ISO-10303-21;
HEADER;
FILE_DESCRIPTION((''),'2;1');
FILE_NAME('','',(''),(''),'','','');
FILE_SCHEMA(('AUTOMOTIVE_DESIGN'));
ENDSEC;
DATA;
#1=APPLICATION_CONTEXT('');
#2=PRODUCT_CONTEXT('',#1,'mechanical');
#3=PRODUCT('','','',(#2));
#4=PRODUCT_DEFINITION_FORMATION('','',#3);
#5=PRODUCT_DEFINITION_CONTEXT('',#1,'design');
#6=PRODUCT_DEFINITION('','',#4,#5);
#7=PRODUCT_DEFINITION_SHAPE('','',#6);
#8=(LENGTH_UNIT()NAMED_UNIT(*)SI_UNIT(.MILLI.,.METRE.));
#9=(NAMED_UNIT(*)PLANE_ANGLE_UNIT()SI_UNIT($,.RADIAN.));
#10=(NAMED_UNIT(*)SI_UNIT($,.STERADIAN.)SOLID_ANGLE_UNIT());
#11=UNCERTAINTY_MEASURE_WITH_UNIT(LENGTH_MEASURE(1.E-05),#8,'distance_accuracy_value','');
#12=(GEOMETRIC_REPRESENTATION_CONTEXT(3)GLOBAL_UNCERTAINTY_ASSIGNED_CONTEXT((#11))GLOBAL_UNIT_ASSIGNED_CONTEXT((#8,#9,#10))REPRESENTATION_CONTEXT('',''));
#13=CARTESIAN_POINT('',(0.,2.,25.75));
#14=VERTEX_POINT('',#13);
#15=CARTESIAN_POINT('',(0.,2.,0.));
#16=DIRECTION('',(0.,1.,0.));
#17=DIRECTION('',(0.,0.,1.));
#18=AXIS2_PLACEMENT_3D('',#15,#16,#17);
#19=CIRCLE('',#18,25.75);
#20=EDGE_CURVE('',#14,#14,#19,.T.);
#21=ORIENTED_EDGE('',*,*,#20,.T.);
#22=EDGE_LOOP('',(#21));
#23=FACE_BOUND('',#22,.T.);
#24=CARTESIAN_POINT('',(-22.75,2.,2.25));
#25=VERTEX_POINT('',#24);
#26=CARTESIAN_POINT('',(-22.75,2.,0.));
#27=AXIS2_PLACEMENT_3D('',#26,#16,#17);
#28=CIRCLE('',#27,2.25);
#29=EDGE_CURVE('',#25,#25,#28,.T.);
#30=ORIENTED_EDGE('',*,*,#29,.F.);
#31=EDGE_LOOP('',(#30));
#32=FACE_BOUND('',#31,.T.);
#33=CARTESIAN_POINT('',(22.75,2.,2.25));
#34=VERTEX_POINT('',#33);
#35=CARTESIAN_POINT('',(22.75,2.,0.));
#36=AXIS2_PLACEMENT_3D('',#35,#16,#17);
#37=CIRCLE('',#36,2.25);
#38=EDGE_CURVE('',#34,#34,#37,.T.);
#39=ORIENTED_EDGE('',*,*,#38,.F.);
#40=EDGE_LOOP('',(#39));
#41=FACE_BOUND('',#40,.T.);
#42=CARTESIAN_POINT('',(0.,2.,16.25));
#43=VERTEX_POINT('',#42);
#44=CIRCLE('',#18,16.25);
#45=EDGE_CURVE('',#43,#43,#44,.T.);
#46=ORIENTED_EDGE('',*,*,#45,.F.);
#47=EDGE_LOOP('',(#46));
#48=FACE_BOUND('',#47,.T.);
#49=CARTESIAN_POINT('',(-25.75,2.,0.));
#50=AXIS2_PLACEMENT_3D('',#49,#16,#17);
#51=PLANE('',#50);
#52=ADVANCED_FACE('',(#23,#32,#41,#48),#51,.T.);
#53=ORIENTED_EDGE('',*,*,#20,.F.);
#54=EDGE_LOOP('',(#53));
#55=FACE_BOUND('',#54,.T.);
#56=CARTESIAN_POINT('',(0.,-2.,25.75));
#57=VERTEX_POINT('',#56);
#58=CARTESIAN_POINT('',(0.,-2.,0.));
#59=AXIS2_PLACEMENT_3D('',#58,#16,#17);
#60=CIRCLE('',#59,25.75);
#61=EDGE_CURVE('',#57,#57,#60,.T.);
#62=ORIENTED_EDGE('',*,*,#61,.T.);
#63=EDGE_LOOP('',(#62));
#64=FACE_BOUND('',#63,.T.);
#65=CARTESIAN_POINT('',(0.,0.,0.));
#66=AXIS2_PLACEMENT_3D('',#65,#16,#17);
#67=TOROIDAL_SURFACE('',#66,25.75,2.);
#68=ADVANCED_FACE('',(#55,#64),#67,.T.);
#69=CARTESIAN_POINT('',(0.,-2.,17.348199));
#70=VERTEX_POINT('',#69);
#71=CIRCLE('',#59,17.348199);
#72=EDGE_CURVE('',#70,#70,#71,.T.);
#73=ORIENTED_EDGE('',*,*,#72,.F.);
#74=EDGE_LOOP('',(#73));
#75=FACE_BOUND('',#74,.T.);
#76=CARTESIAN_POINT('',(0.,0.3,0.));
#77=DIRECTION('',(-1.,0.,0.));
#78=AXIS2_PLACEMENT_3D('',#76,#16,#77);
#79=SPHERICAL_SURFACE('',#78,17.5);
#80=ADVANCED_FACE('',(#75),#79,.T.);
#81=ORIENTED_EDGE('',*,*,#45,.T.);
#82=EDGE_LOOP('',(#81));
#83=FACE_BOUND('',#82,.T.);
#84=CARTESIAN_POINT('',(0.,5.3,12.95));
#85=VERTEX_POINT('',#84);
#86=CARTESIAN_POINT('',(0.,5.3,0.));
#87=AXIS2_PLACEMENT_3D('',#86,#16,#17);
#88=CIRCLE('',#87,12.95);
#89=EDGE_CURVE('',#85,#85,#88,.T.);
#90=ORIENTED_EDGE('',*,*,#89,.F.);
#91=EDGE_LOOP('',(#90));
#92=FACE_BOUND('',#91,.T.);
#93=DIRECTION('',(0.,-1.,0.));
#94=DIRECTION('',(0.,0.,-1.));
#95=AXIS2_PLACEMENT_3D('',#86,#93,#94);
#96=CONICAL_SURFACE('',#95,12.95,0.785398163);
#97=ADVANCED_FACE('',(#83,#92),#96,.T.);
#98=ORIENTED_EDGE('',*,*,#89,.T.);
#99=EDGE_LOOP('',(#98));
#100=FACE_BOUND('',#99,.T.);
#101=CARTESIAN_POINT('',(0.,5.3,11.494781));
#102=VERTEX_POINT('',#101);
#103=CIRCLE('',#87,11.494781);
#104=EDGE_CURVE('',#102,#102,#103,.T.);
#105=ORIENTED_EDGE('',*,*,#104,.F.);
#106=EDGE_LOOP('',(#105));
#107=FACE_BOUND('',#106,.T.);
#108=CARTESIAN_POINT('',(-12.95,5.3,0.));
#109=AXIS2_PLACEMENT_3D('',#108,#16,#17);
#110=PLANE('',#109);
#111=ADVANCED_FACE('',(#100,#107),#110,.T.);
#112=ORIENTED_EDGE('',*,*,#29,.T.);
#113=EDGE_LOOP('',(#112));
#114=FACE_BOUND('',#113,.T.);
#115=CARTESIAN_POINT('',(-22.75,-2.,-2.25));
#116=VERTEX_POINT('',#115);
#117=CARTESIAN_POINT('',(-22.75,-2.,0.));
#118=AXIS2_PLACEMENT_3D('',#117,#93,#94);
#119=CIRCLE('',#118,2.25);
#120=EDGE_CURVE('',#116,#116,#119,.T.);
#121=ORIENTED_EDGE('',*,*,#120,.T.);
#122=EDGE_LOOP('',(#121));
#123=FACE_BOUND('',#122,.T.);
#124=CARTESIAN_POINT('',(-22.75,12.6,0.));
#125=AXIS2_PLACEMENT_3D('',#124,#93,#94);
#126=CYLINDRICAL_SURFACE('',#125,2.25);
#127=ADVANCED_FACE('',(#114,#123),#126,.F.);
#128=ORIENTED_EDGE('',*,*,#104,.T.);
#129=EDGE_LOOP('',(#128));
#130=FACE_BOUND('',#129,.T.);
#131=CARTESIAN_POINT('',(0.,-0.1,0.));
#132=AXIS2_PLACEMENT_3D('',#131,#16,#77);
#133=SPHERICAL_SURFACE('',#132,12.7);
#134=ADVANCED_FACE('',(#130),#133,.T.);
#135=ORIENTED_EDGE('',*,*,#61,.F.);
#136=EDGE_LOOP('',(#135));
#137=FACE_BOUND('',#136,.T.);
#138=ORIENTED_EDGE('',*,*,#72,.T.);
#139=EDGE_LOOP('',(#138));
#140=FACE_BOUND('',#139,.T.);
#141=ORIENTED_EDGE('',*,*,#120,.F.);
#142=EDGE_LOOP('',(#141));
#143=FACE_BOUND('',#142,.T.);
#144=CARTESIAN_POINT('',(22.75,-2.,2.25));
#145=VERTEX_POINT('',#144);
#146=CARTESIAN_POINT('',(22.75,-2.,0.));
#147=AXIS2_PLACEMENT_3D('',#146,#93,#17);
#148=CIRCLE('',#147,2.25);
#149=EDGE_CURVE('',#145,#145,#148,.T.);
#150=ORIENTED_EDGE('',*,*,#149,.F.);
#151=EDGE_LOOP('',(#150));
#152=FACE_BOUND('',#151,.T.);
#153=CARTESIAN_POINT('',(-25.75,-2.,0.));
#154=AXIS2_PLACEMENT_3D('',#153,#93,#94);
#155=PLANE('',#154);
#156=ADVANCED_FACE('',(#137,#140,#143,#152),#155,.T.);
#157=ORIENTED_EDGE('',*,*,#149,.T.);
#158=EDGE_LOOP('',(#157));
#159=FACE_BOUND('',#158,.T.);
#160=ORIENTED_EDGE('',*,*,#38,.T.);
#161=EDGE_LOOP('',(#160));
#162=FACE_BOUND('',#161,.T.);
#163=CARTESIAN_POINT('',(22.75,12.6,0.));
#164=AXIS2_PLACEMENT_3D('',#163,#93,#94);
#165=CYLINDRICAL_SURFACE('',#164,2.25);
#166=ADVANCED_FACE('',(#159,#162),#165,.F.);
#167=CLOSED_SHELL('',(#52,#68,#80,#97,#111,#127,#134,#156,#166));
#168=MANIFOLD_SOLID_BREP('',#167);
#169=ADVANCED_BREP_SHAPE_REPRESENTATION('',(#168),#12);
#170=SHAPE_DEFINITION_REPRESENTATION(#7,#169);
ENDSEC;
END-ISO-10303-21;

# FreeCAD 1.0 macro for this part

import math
import FreeCAD as App
import Part
import Sketcher

V = App.Vector
Q = App.Units.Quantity

doc = App.newDocument("Part")
params = doc.addObject("Spreadsheet::Sheet", "Params")
for row, (alias, value) in enumerate([
    ("sketch1_radius", "2 mm"),
    ("sketch1_radius2", "17.5 mm"),
    ("sketch1_radius3", "12.7 mm"),
    ("sketch1_width", "9.5 mm"),
    ("sketch1_height", "29.8 mm"),
    ("revolution_angle", "360 deg"),
    ("sketch2_diameter", "4.5 mm"),
], start=1):
    params.set(f"A{row}", alias)
    params.set(f"B{row}", "=" + value)
    params.setAlias(f"B{row}", alias)

body = doc.addObject("PartDesign::Body", "Body")

# Sketch on XY plane
sketch1 = body.newObject("Sketcher::SketchObject", "Sketch")
sketch1.AttachmentSupport = (doc.getObject("XY_Plane"), [""])
sketch1.MapMode = "FlatFace"
sketch1.addGeometry([
    Part.LineSegment(V(-16.25, 2, 0), V(-25.75, 2, 0)),  # 0
    Part.ArcOfCircle(Part.Circle(V(-25.75, 0, 0), V(0, 0, 1), 2), math.radians(90), math.radians(270)),  # 1
    Part.LineSegment(V(-25.75, -2, 0), V(-17.348199, -2, 0)),  # 2
    Part.ArcOfCircle(Part.Circle(V(0, 0.3, 0), V(0, 0, 1), 17.5), math.radians(-172.447848), math.radians(-90)),  # 3
    Part.LineSegment(V(0, -17.2, 0), V(0, 12.6, 0)),  # 4
    Part.ArcOfCircle(Part.Circle(V(0, -0.1, 0), V(0, 0, 1), 12.7), math.radians(90), math.radians(154.836876)),  # 5
    Part.LineSegment(V(-11.494781, 5.3, 0), V(-12.95, 5.3, 0)),  # 6
    Part.LineSegment(V(-12.95, 5.3, 0), V(-16.25, 2, 0)),  # 7
], False)
sketch1.addConstraint([
    Sketcher.Constraint("Tangent", 0, 2, 1, 1),
    Sketcher.Constraint("Tangent", 1, 2, 2, 1),
    Sketcher.Constraint("Coincident", 2, 2, 3, 1),
    Sketcher.Constraint("Coincident", 3, 2, 4, 1),
    Sketcher.Constraint("Coincident", 4, 2, 5, 1),
    Sketcher.Constraint("Coincident", 5, 2, 6, 1),
    Sketcher.Constraint("Coincident", 6, 2, 7, 1),
    Sketcher.Constraint("Coincident", 7, 2, 0, 1),
    Sketcher.Constraint("Horizontal", 0),
    Sketcher.Constraint("Horizontal", 2),
    Sketcher.Constraint("Vertical", 4),
    Sketcher.Constraint("Horizontal", 6),
    Sketcher.Constraint("PointOnObject", 1, 3, -1),
    Sketcher.Constraint("PointOnObject", 3, 3, -2),
    Sketcher.Constraint("PointOnObject", 5, 3, -2),
    Sketcher.Constraint("PointOnObject", 3, 2, -2),
    Sketcher.Constraint("Radius", 1, Q("2 mm")),
    Sketcher.Constraint("Radius", 3, Q("17.5 mm")),
    Sketcher.Constraint("Radius", 5, Q("12.7 mm")),
    Sketcher.Constraint("Angle", 7, Q("-135 deg")),
    Sketcher.Constraint("DistanceX", 0, 2, 0, 1, Q("9.5 mm")),
    Sketcher.Constraint("DistanceY", 4, 1, 4, 2, Q("29.8 mm")),
    Sketcher.Constraint("DistanceY", 3, 3, 5, 2, Q("5 mm")),
    Sketcher.Constraint("DistanceY", -1, 1, 3, 3, Q("0.3 mm")),
    Sketcher.Constraint("DistanceX", 1, 3, -1, 1, Q("25.75 mm")),
])
sketch1.setExpression("Constraints[16]", "Params.sketch1_radius")
sketch1.setExpression("Constraints[17]", "Params.sketch1_radius2")
sketch1.setExpression("Constraints[18]", "Params.sketch1_radius3")
sketch1.setExpression("Constraints[20]", "Params.sketch1_width")
sketch1.setExpression("Constraints[21]", "Params.sketch1_height")
revolution = body.newObject("PartDesign::Revolution", "Revolution")
revolution.Profile = sketch1
revolution.ReferenceAxis = (sketch1, ["V_Axis"])
revolution.setExpression("Angle", "Params.revolution_angle")

# Sketch on XZ plane
sketch2 = body.newObject("Sketcher::SketchObject", "Sketch001")
sketch2.AttachmentSupport = (doc.getObject("XZ_Plane"), [""])
sketch2.MapMode = "FlatFace"
sketch2.AttachmentOffset = App.Placement(V(0, 0, 2), App.Rotation())
sketch2.addGeometry([
    Part.Circle(V(-22.75, 0, 0), V(0, 0, 1), 2.25),
    Part.Circle(V(22.75, 0, 0), V(0, 0, 1), 2.25),
], False)
sketch2.addConstraint([
    Sketcher.Constraint("Equal", 0, 1),
    Sketcher.Constraint("Symmetric", 0, 3, 1, 3, -1, 1),
    Sketcher.Constraint("PointOnObject", 0, 3, -1),
    Sketcher.Constraint("Diameter", 0, Q("4.5 mm")),
    Sketcher.Constraint("DistanceX", 0, 3, 1, 3, Q("45.5 mm")),
])
sketch2.setExpression("Constraints[3]", "Params.sketch2_diameter")
pocket1 = body.newObject("PartDesign::Pocket", "Pocket")
pocket1.Profile = sketch2
pocket1.Type = "ThroughAll"

doc.recompute()
